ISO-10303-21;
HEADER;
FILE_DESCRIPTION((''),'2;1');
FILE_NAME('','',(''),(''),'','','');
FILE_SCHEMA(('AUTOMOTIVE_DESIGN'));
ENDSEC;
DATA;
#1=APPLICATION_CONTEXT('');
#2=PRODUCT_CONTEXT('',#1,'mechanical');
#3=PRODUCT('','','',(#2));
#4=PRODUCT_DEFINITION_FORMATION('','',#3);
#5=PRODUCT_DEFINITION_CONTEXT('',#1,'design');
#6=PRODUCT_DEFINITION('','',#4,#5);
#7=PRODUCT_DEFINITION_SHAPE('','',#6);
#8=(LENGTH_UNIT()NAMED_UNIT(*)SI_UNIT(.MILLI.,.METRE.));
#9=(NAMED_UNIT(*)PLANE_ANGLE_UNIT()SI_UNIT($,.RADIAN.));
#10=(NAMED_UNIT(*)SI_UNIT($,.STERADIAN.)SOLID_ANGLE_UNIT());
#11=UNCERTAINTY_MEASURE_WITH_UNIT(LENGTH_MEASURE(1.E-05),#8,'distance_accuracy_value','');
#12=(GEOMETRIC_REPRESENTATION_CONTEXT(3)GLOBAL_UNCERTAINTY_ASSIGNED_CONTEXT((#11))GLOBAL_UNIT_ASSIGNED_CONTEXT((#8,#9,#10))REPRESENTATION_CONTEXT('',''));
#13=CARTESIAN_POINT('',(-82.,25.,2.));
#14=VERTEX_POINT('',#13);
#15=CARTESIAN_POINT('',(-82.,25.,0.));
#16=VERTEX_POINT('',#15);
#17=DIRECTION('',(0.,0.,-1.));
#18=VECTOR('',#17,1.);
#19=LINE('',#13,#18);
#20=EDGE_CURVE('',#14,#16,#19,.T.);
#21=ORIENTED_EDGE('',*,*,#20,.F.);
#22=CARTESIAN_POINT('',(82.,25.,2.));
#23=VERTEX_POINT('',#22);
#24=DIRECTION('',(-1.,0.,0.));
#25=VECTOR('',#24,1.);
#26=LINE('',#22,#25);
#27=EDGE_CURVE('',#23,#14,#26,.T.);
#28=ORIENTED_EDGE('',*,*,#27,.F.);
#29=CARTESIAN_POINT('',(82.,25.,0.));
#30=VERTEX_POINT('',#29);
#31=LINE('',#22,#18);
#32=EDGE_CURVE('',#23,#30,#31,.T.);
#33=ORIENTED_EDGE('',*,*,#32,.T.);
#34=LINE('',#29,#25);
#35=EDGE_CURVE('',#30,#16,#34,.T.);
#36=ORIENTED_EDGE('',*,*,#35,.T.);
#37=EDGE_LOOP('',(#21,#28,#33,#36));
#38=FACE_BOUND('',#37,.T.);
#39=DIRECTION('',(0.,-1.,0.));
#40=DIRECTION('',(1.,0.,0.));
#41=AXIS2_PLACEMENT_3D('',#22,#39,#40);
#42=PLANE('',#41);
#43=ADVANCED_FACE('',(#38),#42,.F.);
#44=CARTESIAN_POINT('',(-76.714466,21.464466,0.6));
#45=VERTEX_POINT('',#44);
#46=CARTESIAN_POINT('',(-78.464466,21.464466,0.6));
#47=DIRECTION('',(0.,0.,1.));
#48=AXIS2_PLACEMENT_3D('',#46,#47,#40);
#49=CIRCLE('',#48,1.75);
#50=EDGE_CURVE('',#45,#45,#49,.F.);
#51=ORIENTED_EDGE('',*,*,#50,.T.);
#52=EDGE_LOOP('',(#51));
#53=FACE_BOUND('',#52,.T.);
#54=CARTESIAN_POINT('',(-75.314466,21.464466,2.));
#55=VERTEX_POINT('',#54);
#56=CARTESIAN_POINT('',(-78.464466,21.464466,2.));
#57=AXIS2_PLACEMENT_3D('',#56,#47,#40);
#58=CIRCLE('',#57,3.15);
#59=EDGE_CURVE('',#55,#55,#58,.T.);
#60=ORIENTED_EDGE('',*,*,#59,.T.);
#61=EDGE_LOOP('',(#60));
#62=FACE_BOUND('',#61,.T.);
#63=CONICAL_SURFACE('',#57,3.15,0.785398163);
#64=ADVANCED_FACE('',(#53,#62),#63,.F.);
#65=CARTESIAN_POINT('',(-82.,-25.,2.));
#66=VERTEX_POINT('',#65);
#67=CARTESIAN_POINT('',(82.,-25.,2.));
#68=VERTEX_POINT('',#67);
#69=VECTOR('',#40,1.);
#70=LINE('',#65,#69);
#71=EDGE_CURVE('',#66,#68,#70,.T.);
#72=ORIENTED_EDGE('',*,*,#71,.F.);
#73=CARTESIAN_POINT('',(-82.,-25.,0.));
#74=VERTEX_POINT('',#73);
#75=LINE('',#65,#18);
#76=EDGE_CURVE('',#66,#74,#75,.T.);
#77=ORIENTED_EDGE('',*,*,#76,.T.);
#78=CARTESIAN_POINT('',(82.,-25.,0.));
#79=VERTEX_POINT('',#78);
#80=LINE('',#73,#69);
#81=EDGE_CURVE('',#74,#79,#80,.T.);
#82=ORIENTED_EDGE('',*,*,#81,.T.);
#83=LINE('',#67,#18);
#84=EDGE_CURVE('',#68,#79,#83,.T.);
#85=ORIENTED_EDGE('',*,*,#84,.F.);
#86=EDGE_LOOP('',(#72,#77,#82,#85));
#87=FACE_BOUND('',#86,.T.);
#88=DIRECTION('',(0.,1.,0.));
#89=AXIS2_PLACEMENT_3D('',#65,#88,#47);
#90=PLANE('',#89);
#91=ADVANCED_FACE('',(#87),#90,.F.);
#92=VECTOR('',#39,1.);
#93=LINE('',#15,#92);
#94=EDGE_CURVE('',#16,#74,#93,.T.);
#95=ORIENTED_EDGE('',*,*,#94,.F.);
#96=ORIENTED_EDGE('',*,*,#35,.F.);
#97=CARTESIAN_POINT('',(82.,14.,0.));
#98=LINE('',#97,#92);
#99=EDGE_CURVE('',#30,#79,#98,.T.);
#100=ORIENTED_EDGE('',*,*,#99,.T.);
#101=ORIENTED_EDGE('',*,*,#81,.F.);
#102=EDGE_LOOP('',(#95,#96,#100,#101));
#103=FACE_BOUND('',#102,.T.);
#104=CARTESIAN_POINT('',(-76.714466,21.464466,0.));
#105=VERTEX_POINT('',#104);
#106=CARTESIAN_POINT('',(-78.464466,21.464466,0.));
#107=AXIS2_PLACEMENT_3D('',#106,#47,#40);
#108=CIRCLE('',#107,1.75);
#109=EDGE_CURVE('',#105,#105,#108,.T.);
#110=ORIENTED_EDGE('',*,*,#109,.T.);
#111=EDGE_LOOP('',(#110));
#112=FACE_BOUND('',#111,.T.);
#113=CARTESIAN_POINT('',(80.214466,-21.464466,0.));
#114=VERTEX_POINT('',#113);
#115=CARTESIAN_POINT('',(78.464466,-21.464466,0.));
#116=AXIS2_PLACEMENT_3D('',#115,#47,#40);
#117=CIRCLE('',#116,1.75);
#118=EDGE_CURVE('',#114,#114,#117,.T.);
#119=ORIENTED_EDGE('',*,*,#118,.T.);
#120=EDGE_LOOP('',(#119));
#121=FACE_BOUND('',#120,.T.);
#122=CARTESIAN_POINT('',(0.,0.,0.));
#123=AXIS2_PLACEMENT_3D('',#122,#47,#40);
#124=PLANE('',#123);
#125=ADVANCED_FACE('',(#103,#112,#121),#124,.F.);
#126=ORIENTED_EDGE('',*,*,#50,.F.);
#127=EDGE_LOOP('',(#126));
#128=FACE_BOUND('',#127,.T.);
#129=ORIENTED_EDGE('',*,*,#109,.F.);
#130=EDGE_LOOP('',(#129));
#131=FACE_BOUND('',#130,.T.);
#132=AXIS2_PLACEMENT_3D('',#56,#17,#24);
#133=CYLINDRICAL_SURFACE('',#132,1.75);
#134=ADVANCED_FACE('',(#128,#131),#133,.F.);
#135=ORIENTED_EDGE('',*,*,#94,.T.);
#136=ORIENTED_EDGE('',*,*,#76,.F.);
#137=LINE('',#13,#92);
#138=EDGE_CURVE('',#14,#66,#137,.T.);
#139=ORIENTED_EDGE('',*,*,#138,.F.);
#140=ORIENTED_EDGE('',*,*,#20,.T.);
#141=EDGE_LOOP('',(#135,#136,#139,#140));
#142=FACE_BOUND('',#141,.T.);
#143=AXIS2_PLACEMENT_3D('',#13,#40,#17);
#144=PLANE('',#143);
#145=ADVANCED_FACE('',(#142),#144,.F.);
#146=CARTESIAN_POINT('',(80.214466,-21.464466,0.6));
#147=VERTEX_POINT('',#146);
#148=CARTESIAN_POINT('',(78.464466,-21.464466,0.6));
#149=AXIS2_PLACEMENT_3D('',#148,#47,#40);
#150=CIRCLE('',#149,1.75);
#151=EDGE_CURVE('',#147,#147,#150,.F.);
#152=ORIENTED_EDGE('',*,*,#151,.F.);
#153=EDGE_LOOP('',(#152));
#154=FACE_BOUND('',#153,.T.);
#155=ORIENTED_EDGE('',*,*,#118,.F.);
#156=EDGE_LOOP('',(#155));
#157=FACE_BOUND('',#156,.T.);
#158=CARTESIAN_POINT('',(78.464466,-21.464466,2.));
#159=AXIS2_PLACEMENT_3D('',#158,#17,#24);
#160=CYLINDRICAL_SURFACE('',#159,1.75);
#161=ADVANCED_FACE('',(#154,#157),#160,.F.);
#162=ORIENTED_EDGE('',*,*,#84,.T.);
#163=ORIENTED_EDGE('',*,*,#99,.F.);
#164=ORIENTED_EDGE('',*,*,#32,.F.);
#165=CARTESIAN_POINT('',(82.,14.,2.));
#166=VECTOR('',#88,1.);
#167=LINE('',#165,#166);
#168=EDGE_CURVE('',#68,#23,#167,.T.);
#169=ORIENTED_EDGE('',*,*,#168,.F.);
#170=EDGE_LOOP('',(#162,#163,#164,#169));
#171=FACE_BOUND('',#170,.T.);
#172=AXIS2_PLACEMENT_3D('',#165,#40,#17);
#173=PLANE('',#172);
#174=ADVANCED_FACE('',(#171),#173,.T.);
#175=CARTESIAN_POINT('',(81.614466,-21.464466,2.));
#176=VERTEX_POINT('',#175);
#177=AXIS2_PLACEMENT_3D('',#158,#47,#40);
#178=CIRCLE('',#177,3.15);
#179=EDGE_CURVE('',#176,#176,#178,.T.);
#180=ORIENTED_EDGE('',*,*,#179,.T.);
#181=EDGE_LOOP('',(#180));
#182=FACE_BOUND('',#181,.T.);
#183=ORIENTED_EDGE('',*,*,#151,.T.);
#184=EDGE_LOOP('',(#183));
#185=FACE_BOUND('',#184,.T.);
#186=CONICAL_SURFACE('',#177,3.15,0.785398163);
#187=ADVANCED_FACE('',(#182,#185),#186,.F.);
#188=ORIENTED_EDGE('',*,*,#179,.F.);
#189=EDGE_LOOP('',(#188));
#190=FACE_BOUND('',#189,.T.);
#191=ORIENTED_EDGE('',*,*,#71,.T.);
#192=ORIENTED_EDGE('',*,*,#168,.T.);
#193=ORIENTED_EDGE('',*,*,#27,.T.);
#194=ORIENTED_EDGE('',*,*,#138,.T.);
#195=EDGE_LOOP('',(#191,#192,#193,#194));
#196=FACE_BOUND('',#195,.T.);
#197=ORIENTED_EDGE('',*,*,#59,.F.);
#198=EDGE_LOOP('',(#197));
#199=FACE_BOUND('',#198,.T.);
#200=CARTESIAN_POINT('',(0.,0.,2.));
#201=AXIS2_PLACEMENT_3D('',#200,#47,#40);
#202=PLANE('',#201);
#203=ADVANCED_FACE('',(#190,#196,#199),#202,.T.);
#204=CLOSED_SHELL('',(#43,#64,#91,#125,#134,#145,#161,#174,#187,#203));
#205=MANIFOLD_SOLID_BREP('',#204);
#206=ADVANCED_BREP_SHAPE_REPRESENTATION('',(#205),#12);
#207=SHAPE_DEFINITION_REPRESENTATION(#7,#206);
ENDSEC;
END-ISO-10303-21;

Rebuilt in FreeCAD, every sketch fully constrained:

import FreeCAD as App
import Part
import Sketcher

V = App.Vector
Q = App.Units.Quantity


def add_polygon(sketch, points):
    """Adds a closed chain of lines whose ends are joined by coincident constraints."""
    first, n = sketch.GeometryCount, len(points)
    for a, b in zip(points, points[1:] + points[:1]):
        sketch.addGeometry(Part.LineSegment(App.Vector(*a, 0), App.Vector(*b, 0)), False)
    for i in range(n):
        sketch.addConstraint(Sketcher.Constraint("Coincident", first + i, 2, first + (i + 1) % n, 1))

doc = App.newDocument("Part")
body = doc.addObject("PartDesign::Body", "Body")

# Sketch on XY plane
sketch1 = body.newObject("Sketcher::SketchObject", "Sketch")
sketch1.AttachmentSupport = (doc.getObject("XY_Plane"), [""])
sketch1.MapMode = "FlatFace"
add_polygon(sketch1, [(82, 25), (-82, 25), (-82, -25), (82, -25)])  # lines 0-3
sketch1.addGeometry(Part.Circle(V(78.5, -21.5, 0), V(0, 0, 1), 1.8), False)  # 4
sketch1.addGeometry(Part.Circle(V(-78.5, 21.5, 0), V(0, 0, 1), 1.8), False)  # 5
sketch1.addConstraint([
    Sketcher.Constraint("Horizontal", 0),
    Sketcher.Constraint("Vertical", 1),
    Sketcher.Constraint("Horizontal", 2),
    Sketcher.Constraint("Vertical", 3),
    Sketcher.Constraint("Equal", 4, 5),
    Sketcher.Constraint("Symmetric", 4, 3, 5, 3, -1, 1),
    Sketcher.Constraint("Symmetric", 0, 2, 2, 2, -1, 1),
    Sketcher.Constraint("Diameter", 4, 3.5),
    Sketcher.Constraint("DistanceX", 0, 2, 0, 1, 164.0),
    Sketcher.Constraint("DistanceY", 1, 2, 1, 1, 50.0),
    Sketcher.Constraint("DistanceX", -1, 1, 4, 3, 78.464466),
    Sketcher.Constraint("DistanceY", 4, 3, -1, 1, 21.464466),
])
pad1 = body.newObject("PartDesign::Pad", "Pad")
pad1.Profile = sketch1
pad1.Length = 2

# Sketch on YZ plane
sketch2 = body.newObject("Sketcher::SketchObject", "Sketch001")
sketch2.AttachmentSupport = (doc.getObject("YZ_Plane"), [""])
sketch2.MapMode = "FlatFace"
sketch2.AttachmentOffset = App.Placement(V(0, 0, -78.464466), App.Rotation())
add_polygon(sketch2, [(21.5, 0), (21.5, 2), (18.3, 2), (19.8, 0.6), (19.8, 0)])  # lines 0-4
sketch2.addGeometry(Part.LineSegment(V(21.5, 2, 0), V(21.5, 0, 0)), True)  # axis
sketch2.addConstraint([
    Sketcher.Constraint("Vertical", 0),
    Sketcher.Constraint("Horizontal", 1),
    Sketcher.Constraint("Vertical", 3),
    Sketcher.Constraint("Horizontal", 4),
    Sketcher.Constraint("Vertical", 5),
    Sketcher.Constraint("Coincident", 5, 1, 0, 2),
    Sketcher.Constraint("PointOnObject", 3, 2, -1),
    Sketcher.Constraint("PointOnObject", 5, 2, -1),
    Sketcher.Constraint("DistanceY", 0, 1, 0, 2, 2.0),
    Sketcher.Constraint("Angle", 2, Q("-45 deg")),
    Sketcher.Constraint("DistanceX", 4, 1, 4, 2, 1.7),
    Sketcher.Constraint("DistanceX", 1, 2, 1, 1, 3.15),
    Sketcher.Constraint("DistanceX", -1, 1, 0, 2, 21.464466),
])
groove = body.newObject("PartDesign::Groove", "Groove")
groove.Profile = sketch2
groove.ReferenceAxis = (sketch2, ["Axis0"])
groove.Angle = 360
doc.recompute()

datumline = body.newObject("PartDesign::Line", "DatumLine")
datumline.Placement = App.Placement(V(0, 0, 0), App.Rotation(V(0, 0, 1), V(0.964560493, -0.26386181, 0)))
linearpattern = body.newObject("PartDesign::LinearPattern", "LinearPattern")
linearpattern.Originals = [groove]
linearpattern.Direction = (datumline, [""])
linearpattern.Mode = "offset"
linearpattern.Offset = 162.694754
linearpattern.Occurrences = 2
body.Tip = linearpattern

doc.recompute()
